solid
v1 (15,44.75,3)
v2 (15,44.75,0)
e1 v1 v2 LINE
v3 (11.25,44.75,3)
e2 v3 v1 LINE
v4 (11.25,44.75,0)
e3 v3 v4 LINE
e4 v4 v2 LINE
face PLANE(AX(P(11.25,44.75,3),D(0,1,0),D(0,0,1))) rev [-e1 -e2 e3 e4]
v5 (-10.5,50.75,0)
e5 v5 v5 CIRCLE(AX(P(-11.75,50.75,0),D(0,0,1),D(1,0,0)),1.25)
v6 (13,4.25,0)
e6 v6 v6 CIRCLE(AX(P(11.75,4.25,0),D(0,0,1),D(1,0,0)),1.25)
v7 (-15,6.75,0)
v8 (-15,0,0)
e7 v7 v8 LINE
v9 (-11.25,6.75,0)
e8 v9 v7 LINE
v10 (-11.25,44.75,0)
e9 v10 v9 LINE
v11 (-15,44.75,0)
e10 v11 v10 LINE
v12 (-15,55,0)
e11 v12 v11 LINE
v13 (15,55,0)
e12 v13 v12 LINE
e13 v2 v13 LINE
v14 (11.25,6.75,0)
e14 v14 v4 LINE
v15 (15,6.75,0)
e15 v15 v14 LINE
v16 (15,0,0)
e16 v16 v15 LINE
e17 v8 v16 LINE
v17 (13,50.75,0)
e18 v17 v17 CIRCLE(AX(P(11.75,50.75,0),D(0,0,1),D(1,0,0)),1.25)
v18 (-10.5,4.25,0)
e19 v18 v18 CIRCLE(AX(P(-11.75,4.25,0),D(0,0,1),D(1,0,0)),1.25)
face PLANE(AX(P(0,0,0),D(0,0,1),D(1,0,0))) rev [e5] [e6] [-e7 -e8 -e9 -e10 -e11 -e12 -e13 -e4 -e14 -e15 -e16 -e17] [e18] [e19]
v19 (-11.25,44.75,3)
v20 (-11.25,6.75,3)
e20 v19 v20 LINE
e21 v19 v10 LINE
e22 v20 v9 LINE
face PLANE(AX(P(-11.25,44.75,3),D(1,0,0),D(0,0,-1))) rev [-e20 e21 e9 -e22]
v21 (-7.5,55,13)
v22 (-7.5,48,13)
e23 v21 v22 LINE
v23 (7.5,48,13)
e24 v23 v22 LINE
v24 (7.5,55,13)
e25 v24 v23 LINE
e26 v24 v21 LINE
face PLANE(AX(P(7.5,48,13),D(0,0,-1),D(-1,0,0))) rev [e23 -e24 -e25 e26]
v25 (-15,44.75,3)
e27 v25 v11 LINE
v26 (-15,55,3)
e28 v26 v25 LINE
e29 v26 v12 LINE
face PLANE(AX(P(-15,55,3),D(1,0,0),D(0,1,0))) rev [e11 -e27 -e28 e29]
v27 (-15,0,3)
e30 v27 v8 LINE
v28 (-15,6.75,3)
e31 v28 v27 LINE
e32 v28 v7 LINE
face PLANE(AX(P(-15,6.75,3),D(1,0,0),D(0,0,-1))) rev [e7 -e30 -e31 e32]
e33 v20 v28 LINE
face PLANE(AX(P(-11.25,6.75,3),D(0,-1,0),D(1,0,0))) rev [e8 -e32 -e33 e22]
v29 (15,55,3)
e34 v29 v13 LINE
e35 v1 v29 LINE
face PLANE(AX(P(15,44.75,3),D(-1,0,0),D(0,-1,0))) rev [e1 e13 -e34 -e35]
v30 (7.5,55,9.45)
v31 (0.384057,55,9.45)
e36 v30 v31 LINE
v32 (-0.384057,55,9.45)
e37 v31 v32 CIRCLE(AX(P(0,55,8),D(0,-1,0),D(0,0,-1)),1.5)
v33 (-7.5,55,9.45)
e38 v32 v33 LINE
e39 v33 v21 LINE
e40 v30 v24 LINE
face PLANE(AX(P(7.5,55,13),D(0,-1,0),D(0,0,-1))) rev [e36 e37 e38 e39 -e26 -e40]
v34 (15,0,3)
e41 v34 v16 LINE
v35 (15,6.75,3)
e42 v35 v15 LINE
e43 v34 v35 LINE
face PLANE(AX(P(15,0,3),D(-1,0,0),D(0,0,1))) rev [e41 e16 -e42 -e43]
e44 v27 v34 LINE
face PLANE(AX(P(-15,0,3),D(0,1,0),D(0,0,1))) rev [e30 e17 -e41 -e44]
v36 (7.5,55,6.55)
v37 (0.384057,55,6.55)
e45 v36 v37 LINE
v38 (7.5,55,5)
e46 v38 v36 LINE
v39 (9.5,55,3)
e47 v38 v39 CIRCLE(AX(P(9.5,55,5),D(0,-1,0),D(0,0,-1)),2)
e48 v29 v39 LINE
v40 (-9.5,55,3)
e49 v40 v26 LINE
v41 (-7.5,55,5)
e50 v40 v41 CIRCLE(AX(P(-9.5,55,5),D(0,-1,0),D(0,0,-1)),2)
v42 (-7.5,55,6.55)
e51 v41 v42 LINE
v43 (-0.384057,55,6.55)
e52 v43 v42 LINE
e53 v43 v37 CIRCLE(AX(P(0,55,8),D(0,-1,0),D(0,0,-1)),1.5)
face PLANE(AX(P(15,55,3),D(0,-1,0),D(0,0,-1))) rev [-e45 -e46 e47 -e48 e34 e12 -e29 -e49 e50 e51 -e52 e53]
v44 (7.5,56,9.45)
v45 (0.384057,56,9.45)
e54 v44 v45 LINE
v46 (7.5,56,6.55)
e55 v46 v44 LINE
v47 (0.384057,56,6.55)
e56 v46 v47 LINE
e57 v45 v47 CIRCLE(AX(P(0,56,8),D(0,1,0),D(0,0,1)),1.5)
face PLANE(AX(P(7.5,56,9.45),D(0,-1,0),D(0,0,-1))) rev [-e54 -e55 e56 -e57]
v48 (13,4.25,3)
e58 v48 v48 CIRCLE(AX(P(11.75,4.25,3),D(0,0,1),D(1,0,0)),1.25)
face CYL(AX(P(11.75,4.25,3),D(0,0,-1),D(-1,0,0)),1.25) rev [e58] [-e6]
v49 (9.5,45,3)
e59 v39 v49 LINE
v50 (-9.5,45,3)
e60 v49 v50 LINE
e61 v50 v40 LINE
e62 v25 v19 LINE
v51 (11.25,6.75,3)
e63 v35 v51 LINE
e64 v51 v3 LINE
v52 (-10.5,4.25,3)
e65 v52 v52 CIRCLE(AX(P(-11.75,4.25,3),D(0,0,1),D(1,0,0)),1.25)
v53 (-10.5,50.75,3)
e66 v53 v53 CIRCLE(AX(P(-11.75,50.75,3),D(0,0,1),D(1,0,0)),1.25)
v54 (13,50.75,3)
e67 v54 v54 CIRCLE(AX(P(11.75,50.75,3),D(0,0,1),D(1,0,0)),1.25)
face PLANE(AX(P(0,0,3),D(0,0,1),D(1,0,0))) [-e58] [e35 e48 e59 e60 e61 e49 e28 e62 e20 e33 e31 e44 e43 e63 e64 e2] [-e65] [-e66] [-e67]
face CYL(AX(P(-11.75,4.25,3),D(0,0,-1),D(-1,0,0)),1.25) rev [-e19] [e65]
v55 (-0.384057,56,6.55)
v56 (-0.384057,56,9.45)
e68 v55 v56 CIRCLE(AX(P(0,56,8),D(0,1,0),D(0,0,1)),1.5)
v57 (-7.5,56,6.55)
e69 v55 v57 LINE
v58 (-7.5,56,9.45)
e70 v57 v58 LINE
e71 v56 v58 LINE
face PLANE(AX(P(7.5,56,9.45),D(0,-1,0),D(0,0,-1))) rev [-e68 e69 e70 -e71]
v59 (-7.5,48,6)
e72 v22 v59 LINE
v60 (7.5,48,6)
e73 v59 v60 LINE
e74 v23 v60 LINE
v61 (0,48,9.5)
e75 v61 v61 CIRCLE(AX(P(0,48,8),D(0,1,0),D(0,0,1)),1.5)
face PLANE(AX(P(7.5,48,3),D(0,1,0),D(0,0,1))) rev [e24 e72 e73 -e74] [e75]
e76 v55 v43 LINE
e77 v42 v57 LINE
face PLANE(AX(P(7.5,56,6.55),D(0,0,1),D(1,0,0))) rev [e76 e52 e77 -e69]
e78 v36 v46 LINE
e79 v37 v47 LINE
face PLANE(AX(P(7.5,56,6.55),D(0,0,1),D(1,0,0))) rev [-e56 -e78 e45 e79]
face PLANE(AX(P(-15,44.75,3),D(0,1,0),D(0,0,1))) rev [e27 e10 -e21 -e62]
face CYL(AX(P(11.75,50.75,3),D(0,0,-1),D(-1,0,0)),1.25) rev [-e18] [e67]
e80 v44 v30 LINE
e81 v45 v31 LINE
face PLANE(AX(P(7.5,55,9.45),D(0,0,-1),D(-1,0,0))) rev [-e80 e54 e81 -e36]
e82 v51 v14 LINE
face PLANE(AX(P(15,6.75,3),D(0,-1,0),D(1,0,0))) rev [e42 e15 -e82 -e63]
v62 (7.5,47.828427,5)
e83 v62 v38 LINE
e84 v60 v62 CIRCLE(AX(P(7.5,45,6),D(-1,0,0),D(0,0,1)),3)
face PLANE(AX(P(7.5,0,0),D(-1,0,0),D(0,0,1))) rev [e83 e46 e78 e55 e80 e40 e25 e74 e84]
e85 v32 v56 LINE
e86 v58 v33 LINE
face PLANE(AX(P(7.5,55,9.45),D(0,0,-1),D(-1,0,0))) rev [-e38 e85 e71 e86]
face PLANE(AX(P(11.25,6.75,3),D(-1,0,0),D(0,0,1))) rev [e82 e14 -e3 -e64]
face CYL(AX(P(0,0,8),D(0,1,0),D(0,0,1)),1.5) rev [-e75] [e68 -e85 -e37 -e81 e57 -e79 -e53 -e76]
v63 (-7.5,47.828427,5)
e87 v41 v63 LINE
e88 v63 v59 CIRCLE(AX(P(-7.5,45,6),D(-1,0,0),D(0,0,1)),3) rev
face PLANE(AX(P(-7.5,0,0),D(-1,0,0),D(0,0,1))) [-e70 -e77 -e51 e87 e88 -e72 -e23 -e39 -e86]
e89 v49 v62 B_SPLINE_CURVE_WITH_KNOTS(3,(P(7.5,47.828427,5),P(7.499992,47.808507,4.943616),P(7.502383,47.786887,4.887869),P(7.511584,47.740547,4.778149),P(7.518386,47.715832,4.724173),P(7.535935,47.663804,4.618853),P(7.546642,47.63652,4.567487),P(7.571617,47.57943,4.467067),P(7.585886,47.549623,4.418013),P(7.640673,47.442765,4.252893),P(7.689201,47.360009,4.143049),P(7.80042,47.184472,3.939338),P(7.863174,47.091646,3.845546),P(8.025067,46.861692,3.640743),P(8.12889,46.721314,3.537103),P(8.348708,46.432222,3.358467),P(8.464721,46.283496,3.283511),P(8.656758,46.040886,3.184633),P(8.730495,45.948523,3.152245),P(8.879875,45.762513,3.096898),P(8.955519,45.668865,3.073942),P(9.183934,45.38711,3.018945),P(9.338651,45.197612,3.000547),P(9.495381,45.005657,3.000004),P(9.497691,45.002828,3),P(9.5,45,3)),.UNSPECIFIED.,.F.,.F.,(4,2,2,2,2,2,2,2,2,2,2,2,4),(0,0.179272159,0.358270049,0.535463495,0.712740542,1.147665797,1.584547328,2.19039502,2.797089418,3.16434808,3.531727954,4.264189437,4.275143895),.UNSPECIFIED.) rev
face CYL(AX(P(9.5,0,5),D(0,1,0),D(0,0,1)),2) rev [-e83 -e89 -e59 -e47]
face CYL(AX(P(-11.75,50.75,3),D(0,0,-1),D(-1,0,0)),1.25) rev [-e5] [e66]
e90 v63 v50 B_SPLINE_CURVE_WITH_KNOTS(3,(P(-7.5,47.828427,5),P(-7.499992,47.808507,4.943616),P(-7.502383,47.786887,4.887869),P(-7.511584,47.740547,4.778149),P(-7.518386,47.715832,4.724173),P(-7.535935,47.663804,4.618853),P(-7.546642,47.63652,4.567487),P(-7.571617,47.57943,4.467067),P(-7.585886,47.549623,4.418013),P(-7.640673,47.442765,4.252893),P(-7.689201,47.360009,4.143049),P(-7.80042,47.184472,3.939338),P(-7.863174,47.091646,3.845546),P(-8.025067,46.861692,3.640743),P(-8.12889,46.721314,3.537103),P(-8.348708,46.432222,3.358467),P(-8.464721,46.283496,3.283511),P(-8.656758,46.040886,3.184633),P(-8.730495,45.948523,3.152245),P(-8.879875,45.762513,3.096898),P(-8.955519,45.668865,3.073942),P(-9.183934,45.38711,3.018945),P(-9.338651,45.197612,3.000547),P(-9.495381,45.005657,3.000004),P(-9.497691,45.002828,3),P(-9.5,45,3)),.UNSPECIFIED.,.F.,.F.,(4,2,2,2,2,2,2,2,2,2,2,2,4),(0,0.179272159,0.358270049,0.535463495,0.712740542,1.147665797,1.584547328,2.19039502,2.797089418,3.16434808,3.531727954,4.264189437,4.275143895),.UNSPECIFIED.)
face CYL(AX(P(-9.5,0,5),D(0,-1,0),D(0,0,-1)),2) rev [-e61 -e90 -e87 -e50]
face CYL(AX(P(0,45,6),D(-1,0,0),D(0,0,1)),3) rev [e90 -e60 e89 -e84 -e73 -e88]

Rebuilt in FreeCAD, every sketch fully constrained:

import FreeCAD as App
import Part
import Sketcher


def edges_at(feature, points):
    """Names of the edges that pass closest to the given points."""
    edges = feature.Shape.Edges
    near = lambda p: min(range(len(edges)), key=lambda i: edges[i].distToShape(Part.Vertex(*p))[0])
    return sorted({f"Edge{near(p) + 1}" for p in points})

doc = App.newDocument("Part")
body = doc.addObject("PartDesign::Body", "Body")

sketch1 = body.newObject("Sketcher::SketchObject", "Sketch")
sketch1.AttachmentSupport = (doc.getObject("XY_Plane"), [""])
sketch1.MapMode = "FlatFace"
sketch1.addGeometry(Part.LineSegment(App.Vector(-15, 55, 0), App.Vector(-15, 44.8, 0)), False)
sketch1.addGeometry(Part.LineSegment(App.Vector(-15, 44.8, 0), App.Vector(-11.2, 44.8, 0)), False)
sketch1.addGeometry(Part.LineSegment(App.Vector(-11.2, 44.8, 0), App.Vector(-11.2, 6.8, 0)), False)
sketch1.addGeometry(Part.LineSegment(App.Vector(-11.2, 6.8, 0), App.Vector(-15, 6.8, 0)), False)
sketch1.addGeometry(Part.LineSegment(App.Vector(-15, 6.8, 0), App.Vector(-15, 0, 0)), False)
sketch1.addGeometry(Part.LineSegment(App.Vector(-15, 0, 0), App.Vector(15, 0, 0)), False)
sketch1.addGeometry(Part.LineSegment(App.Vector(15, 0, 0), App.Vector(15, 6.8, 0)), False)
sketch1.addGeometry(Part.LineSegment(App.Vector(15, 6.8, 0), App.Vector(11.2, 6.8, 0)), False)
sketch1.addGeometry(Part.LineSegment(App.Vector(11.2, 6.8, 0), App.Vector(11.2, 44.8, 0)), False)
sketch1.addGeometry(Part.LineSegment(App.Vector(11.2, 44.8, 0), App.Vector(15, 44.8, 0)), False)
sketch1.addGeometry(Part.LineSegment(App.Vector(15, 44.8, 0), App.Vector(15, 55, 0)), False)
sketch1.addGeometry(Part.LineSegment(App.Vector(15, 55, 0), App.Vector(-15, 55, 0)), False)
sketch1.addGeometry(Part.Circle(App.Vector(-11.8, 4.2, 0), App.Vector(0, 0, 1), 1.2), False)
sketch1.addGeometry(Part.Circle(App.Vector(11.8, 4.2, 0), App.Vector(0, 0, 1), 1.2), False)
sketch1.addGeometry(Part.Circle(App.Vector(-11.8, 50.8, 0), App.Vector(0, 0, 1), 1.2), False)
sketch1.addGeometry(Part.Circle(App.Vector(11.8, 50.8, 0), App.Vector(0, 0, 1), 1.2), False)
sketch1.addConstraint(Sketcher.Constraint("Coincident", 0, 2, 1, 1))
sketch1.addConstraint(Sketcher.Constraint("Coincident", 1, 2, 2, 1))
sketch1.addConstraint(Sketcher.Constraint("Coincident", 2, 2, 3, 1))
sketch1.addConstraint(Sketcher.Constraint("Coincident", 3, 2, 4, 1))
sketch1.addConstraint(Sketcher.Constraint("Coincident", 4, 2, 5, 1))
sketch1.addConstraint(Sketcher.Constraint("Coincident", 5, 2, 6, 1))
sketch1.addConstraint(Sketcher.Constraint("Coincident", 6, 2, 7, 1))
sketch1.addConstraint(Sketcher.Constraint("Coincident", 7, 2, 8, 1))
sketch1.addConstraint(Sketcher.Constraint("Coincident", 8, 2, 9, 1))
sketch1.addConstraint(Sketcher.Constraint("Coincident", 9, 2, 10, 1))
sketch1.addConstraint(Sketcher.Constraint("Coincident", 10, 2, 11, 1))
sketch1.addConstraint(Sketcher.Constraint("Coincident", 11, 2, 0, 1))
sketch1.addConstraint(Sketcher.Constraint("Vertical", 0))
sketch1.addConstraint(Sketcher.Constraint("Horizontal", 1))
sketch1.addConstraint(Sketcher.Constraint("Vertical", 2))
sketch1.addConstraint(Sketcher.Constraint("Horizontal", 3))
sketch1.addConstraint(Sketcher.Constraint("Vertical", 4))
sketch1.addConstraint(Sketcher.Constraint("Horizontal", 5))
sketch1.addConstraint(Sketcher.Constraint("Vertical", 6))
sketch1.addConstraint(Sketcher.Constraint("Horizontal", 7))
sketch1.addConstraint(Sketcher.Constraint("Vertical", 8))
sketch1.addConstraint(Sketcher.Constraint("Horizontal", 9))
sketch1.addConstraint(Sketcher.Constraint("Vertical", 10))
sketch1.addConstraint(Sketcher.Constraint("Horizontal", 11))
sketch1.addConstraint(Sketcher.Constraint("Equal", 12, 13))
sketch1.addConstraint(Sketcher.Constraint("Equal", 13, 14))
sketch1.addConstraint(Sketcher.Constraint("Equal", 14, 15))
sketch1.addConstraint(Sketcher.Constraint("Symmetric", 4, 2, 5, 2, -1, 1))
sketch1.addConstraint(Sketcher.Constraint("Symmetric", 12, 3, 13, 3, -2))
sketch1.addConstraint(Sketcher.Constraint("Symmetric", 14, 3, 15, 3, -2))
sketch1.addConstraint(Sketcher.Constraint("Symmetric", 2, 2, 7, 2, -2))
sketch1.addConstraint(Sketcher.Constraint("Symmetric", 0, 2, 9, 2, -2))
sketch1.addConstraint(Sketcher.Constraint("Vertical", 12, 3, 14, 3))
sketch1.addConstraint(Sketcher.Constraint("Vertical", 0, 2, 3, 2))
sketch1.addConstraint(Sketcher.Constraint("Diameter", 12, 2.5))
sketch1.addConstraint(Sketcher.Constraint("DistanceX", 5, 1, 5, 2, 30.0))
sketch1.addConstraint(Sketcher.Constraint("DistanceY", 2, 2, 2, 1, 38.0))
sketch1.addConstraint(Sketcher.Constraint("DistanceY", -1, 1, 10, 2, 55.0))
sketch1.addConstraint(Sketcher.Constraint("DistanceY", 0, 2, 14, 3, 6.0))
sketch1.addConstraint(Sketcher.Constraint("DistanceX", 1, 2, 15, 3, 23.0))
sketch1.addConstraint(Sketcher.Constraint("DistanceX", 1, 1, 1, 2, 3.75))
sketch1.addConstraint(Sketcher.Constraint("DistanceY", 0, 2, 0, 1, 10.25))
sketch1.addConstraint(Sketcher.Constraint("DistanceY", 12, 3, 14, 3, 46.5))
pad1 = body.newObject("PartDesign::Pad", "Pad")
pad1.Profile = sketch1
pad1.Length = 3

sketch2 = body.newObject("Sketcher::SketchObject", "Sketch001")
sketch2.AttachmentSupport = (doc.getObject("YZ_Plane"), [""])
sketch2.MapMode = "FlatFace"
sketch2.addGeometry(Part.LineSegment(App.Vector(55, 9.4, 0), App.Vector(55, 13, 0)), False)
sketch2.addGeometry(Part.LineSegment(App.Vector(55, 13, 0), App.Vector(48, 13, 0)), False)
sketch2.addGeometry(Part.LineSegment(App.Vector(48, 13, 0), App.Vector(48, 3, 0)), False)
sketch2.addGeometry(Part.LineSegment(App.Vector(48, 3, 0), App.Vector(55, 3, 0)), False)
sketch2.addGeometry(Part.LineSegment(App.Vector(55, 3, 0), App.Vector(55, 6.5, 0)), False)
sketch2.addGeometry(Part.LineSegment(App.Vector(55, 6.5, 0), App.Vector(56, 6.5, 0)), False)
sketch2.addGeometry(Part.LineSegment(App.Vector(56, 6.5, 0), App.Vector(56, 9.4, 0)), False)
sketch2.addGeometry(Part.LineSegment(App.Vector(56, 9.4, 0), App.Vector(55, 9.4, 0)), False)
sketch2.addConstraint(Sketcher.Constraint("Coincident", 0, 2, 1, 1))
sketch2.addConstraint(Sketcher.Constraint("Coincident", 1, 2, 2, 1))
sketch2.addConstraint(Sketcher.Constraint("Coincident", 2, 2, 3, 1))
sketch2.addConstraint(Sketcher.Constraint("Coincident", 3, 2, 4, 1))
sketch2.addConstraint(Sketcher.Constraint("Coincident", 4, 2, 5, 1))
sketch2.addConstraint(Sketcher.Constraint("Coincident", 5, 2, 6, 1))
sketch2.addConstraint(Sketcher.Constraint("Coincident", 6, 2, 7, 1))
sketch2.addConstraint(Sketcher.Constraint("Coincident", 7, 2, 0, 1))
sketch2.addConstraint(Sketcher.Constraint("Vertical", 0))
sketch2.addConstraint(Sketcher.Constraint("Horizontal", 1))
sketch2.addConstraint(Sketcher.Constraint("Vertical", 2))
sketch2.addConstraint(Sketcher.Constraint("Horizontal", 3))
sketch2.addConstraint(Sketcher.Constraint("Vertical", 4))
sketch2.addConstraint(Sketcher.Constraint("Horizontal", 5))
sketch2.addConstraint(Sketcher.Constraint("Vertical", 6))
sketch2.addConstraint(Sketcher.Constraint("Horizontal", 7))
sketch2.addConstraint(Sketcher.Constraint("Vertical", 0, 2, 3, 2))
sketch2.addConstraint(Sketcher.Constraint("Equal", 0, 4))
sketch2.addConstraint(Sketcher.Constraint("DistanceX", 1, 2, 1, 1, 7.0))
sketch2.addConstraint(Sketcher.Constraint("DistanceX", 5, 1, 5, 2, 1.0))
sketch2.addConstraint(Sketcher.Constraint("DistanceY", 2, 2, 2, 1, 10.0))
sketch2.addConstraint(Sketcher.Constraint("DistanceY", 6, 1, 6, 2, 2.9))
sketch2.addConstraint(Sketcher.Constraint("DistanceX", -1, 1, 0, 2, 55.0))
sketch2.addConstraint(Sketcher.Constraint("DistanceY", -1, 1, 0, 2, 13.0))
pad2 = body.newObject("PartDesign::Pad", "Pad001")
pad2.Profile = sketch2
pad2.Length = 15
pad2.Midplane = True
doc.recompute()

fillet = body.newObject("PartDesign::Fillet", "Fillet")
fillet.Base = (pad2, edges_at(pad2, [(0, 48, 3)]))
fillet.Radius = 3
doc.recompute()

fillet2 = body.newObject("PartDesign::Fillet", "Fillet001")
fillet2.Base = (fillet, edges_at(fillet, [(-7.5, 50, 3), (7.5, 50, 3)]))
fillet2.Radius = 2

sketch3 = body.newObject("Sketcher::SketchObject", "Sketch002")
sketch3.AttachmentSupport = (doc.getObject("XZ_Plane"), [""])
sketch3.MapMode = "FlatFace"
sketch3.AttachmentOffset = App.Placement(App.Vector(0, 0, -56), App.Rotation())
sketch3.addGeometry(Part.Circle(App.Vector(0, 8, 0), App.Vector(0, 0, 1), 1.5), False)
sketch3.addConstraint(Sketcher.Constraint("PointOnObject", 0, 3, -2))
sketch3.addConstraint(Sketcher.Constraint("Diameter", 0, 3.0))
sketch3.addConstraint(Sketcher.Constraint("DistanceY", -1, 1, 0, 3, 8.0))
pocket1 = body.newObject("PartDesign::Pocket", "Pocket")
pocket1.Profile = sketch3
pocket1.Type = "ThroughAll"
pocket1.Reversed = True

doc.recompute()
